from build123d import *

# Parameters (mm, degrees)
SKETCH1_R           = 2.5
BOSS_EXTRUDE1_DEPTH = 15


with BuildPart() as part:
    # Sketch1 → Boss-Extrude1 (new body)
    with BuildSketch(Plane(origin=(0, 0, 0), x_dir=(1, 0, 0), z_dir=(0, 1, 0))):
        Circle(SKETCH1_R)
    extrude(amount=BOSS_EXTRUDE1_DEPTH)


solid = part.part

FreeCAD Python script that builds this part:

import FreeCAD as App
import Part
import Sketcher

V = App.Vector
Q = App.Units.Quantity

doc = App.newDocument("Part")
body = doc.addObject("PartDesign::Body", "Body")

# Sketch on XZ plane
sketch1 = body.newObject("Sketcher::SketchObject", "Sketch")
sketch1.AttachmentSupport = (doc.getObject("XZ_Plane"), [""])
sketch1.MapMode = "FlatFace"
sketch1.addGeometry(Part.Circle(V(0, 0, 0), V(0, 0, 1), 2.5), False)
sketch1.addConstraint(Sketcher.Constraint("Coincident", 0, 3, -1, 1))
sketch1.addConstraint(Sketcher.Constraint("Diameter", 0, Q("5 mm")))
pad1 = body.newObject("PartDesign::Pad", "Pad")
pad1.Profile = sketch1
pad1.Length = 15
pad1.Reversed = True

doc.recompute()
